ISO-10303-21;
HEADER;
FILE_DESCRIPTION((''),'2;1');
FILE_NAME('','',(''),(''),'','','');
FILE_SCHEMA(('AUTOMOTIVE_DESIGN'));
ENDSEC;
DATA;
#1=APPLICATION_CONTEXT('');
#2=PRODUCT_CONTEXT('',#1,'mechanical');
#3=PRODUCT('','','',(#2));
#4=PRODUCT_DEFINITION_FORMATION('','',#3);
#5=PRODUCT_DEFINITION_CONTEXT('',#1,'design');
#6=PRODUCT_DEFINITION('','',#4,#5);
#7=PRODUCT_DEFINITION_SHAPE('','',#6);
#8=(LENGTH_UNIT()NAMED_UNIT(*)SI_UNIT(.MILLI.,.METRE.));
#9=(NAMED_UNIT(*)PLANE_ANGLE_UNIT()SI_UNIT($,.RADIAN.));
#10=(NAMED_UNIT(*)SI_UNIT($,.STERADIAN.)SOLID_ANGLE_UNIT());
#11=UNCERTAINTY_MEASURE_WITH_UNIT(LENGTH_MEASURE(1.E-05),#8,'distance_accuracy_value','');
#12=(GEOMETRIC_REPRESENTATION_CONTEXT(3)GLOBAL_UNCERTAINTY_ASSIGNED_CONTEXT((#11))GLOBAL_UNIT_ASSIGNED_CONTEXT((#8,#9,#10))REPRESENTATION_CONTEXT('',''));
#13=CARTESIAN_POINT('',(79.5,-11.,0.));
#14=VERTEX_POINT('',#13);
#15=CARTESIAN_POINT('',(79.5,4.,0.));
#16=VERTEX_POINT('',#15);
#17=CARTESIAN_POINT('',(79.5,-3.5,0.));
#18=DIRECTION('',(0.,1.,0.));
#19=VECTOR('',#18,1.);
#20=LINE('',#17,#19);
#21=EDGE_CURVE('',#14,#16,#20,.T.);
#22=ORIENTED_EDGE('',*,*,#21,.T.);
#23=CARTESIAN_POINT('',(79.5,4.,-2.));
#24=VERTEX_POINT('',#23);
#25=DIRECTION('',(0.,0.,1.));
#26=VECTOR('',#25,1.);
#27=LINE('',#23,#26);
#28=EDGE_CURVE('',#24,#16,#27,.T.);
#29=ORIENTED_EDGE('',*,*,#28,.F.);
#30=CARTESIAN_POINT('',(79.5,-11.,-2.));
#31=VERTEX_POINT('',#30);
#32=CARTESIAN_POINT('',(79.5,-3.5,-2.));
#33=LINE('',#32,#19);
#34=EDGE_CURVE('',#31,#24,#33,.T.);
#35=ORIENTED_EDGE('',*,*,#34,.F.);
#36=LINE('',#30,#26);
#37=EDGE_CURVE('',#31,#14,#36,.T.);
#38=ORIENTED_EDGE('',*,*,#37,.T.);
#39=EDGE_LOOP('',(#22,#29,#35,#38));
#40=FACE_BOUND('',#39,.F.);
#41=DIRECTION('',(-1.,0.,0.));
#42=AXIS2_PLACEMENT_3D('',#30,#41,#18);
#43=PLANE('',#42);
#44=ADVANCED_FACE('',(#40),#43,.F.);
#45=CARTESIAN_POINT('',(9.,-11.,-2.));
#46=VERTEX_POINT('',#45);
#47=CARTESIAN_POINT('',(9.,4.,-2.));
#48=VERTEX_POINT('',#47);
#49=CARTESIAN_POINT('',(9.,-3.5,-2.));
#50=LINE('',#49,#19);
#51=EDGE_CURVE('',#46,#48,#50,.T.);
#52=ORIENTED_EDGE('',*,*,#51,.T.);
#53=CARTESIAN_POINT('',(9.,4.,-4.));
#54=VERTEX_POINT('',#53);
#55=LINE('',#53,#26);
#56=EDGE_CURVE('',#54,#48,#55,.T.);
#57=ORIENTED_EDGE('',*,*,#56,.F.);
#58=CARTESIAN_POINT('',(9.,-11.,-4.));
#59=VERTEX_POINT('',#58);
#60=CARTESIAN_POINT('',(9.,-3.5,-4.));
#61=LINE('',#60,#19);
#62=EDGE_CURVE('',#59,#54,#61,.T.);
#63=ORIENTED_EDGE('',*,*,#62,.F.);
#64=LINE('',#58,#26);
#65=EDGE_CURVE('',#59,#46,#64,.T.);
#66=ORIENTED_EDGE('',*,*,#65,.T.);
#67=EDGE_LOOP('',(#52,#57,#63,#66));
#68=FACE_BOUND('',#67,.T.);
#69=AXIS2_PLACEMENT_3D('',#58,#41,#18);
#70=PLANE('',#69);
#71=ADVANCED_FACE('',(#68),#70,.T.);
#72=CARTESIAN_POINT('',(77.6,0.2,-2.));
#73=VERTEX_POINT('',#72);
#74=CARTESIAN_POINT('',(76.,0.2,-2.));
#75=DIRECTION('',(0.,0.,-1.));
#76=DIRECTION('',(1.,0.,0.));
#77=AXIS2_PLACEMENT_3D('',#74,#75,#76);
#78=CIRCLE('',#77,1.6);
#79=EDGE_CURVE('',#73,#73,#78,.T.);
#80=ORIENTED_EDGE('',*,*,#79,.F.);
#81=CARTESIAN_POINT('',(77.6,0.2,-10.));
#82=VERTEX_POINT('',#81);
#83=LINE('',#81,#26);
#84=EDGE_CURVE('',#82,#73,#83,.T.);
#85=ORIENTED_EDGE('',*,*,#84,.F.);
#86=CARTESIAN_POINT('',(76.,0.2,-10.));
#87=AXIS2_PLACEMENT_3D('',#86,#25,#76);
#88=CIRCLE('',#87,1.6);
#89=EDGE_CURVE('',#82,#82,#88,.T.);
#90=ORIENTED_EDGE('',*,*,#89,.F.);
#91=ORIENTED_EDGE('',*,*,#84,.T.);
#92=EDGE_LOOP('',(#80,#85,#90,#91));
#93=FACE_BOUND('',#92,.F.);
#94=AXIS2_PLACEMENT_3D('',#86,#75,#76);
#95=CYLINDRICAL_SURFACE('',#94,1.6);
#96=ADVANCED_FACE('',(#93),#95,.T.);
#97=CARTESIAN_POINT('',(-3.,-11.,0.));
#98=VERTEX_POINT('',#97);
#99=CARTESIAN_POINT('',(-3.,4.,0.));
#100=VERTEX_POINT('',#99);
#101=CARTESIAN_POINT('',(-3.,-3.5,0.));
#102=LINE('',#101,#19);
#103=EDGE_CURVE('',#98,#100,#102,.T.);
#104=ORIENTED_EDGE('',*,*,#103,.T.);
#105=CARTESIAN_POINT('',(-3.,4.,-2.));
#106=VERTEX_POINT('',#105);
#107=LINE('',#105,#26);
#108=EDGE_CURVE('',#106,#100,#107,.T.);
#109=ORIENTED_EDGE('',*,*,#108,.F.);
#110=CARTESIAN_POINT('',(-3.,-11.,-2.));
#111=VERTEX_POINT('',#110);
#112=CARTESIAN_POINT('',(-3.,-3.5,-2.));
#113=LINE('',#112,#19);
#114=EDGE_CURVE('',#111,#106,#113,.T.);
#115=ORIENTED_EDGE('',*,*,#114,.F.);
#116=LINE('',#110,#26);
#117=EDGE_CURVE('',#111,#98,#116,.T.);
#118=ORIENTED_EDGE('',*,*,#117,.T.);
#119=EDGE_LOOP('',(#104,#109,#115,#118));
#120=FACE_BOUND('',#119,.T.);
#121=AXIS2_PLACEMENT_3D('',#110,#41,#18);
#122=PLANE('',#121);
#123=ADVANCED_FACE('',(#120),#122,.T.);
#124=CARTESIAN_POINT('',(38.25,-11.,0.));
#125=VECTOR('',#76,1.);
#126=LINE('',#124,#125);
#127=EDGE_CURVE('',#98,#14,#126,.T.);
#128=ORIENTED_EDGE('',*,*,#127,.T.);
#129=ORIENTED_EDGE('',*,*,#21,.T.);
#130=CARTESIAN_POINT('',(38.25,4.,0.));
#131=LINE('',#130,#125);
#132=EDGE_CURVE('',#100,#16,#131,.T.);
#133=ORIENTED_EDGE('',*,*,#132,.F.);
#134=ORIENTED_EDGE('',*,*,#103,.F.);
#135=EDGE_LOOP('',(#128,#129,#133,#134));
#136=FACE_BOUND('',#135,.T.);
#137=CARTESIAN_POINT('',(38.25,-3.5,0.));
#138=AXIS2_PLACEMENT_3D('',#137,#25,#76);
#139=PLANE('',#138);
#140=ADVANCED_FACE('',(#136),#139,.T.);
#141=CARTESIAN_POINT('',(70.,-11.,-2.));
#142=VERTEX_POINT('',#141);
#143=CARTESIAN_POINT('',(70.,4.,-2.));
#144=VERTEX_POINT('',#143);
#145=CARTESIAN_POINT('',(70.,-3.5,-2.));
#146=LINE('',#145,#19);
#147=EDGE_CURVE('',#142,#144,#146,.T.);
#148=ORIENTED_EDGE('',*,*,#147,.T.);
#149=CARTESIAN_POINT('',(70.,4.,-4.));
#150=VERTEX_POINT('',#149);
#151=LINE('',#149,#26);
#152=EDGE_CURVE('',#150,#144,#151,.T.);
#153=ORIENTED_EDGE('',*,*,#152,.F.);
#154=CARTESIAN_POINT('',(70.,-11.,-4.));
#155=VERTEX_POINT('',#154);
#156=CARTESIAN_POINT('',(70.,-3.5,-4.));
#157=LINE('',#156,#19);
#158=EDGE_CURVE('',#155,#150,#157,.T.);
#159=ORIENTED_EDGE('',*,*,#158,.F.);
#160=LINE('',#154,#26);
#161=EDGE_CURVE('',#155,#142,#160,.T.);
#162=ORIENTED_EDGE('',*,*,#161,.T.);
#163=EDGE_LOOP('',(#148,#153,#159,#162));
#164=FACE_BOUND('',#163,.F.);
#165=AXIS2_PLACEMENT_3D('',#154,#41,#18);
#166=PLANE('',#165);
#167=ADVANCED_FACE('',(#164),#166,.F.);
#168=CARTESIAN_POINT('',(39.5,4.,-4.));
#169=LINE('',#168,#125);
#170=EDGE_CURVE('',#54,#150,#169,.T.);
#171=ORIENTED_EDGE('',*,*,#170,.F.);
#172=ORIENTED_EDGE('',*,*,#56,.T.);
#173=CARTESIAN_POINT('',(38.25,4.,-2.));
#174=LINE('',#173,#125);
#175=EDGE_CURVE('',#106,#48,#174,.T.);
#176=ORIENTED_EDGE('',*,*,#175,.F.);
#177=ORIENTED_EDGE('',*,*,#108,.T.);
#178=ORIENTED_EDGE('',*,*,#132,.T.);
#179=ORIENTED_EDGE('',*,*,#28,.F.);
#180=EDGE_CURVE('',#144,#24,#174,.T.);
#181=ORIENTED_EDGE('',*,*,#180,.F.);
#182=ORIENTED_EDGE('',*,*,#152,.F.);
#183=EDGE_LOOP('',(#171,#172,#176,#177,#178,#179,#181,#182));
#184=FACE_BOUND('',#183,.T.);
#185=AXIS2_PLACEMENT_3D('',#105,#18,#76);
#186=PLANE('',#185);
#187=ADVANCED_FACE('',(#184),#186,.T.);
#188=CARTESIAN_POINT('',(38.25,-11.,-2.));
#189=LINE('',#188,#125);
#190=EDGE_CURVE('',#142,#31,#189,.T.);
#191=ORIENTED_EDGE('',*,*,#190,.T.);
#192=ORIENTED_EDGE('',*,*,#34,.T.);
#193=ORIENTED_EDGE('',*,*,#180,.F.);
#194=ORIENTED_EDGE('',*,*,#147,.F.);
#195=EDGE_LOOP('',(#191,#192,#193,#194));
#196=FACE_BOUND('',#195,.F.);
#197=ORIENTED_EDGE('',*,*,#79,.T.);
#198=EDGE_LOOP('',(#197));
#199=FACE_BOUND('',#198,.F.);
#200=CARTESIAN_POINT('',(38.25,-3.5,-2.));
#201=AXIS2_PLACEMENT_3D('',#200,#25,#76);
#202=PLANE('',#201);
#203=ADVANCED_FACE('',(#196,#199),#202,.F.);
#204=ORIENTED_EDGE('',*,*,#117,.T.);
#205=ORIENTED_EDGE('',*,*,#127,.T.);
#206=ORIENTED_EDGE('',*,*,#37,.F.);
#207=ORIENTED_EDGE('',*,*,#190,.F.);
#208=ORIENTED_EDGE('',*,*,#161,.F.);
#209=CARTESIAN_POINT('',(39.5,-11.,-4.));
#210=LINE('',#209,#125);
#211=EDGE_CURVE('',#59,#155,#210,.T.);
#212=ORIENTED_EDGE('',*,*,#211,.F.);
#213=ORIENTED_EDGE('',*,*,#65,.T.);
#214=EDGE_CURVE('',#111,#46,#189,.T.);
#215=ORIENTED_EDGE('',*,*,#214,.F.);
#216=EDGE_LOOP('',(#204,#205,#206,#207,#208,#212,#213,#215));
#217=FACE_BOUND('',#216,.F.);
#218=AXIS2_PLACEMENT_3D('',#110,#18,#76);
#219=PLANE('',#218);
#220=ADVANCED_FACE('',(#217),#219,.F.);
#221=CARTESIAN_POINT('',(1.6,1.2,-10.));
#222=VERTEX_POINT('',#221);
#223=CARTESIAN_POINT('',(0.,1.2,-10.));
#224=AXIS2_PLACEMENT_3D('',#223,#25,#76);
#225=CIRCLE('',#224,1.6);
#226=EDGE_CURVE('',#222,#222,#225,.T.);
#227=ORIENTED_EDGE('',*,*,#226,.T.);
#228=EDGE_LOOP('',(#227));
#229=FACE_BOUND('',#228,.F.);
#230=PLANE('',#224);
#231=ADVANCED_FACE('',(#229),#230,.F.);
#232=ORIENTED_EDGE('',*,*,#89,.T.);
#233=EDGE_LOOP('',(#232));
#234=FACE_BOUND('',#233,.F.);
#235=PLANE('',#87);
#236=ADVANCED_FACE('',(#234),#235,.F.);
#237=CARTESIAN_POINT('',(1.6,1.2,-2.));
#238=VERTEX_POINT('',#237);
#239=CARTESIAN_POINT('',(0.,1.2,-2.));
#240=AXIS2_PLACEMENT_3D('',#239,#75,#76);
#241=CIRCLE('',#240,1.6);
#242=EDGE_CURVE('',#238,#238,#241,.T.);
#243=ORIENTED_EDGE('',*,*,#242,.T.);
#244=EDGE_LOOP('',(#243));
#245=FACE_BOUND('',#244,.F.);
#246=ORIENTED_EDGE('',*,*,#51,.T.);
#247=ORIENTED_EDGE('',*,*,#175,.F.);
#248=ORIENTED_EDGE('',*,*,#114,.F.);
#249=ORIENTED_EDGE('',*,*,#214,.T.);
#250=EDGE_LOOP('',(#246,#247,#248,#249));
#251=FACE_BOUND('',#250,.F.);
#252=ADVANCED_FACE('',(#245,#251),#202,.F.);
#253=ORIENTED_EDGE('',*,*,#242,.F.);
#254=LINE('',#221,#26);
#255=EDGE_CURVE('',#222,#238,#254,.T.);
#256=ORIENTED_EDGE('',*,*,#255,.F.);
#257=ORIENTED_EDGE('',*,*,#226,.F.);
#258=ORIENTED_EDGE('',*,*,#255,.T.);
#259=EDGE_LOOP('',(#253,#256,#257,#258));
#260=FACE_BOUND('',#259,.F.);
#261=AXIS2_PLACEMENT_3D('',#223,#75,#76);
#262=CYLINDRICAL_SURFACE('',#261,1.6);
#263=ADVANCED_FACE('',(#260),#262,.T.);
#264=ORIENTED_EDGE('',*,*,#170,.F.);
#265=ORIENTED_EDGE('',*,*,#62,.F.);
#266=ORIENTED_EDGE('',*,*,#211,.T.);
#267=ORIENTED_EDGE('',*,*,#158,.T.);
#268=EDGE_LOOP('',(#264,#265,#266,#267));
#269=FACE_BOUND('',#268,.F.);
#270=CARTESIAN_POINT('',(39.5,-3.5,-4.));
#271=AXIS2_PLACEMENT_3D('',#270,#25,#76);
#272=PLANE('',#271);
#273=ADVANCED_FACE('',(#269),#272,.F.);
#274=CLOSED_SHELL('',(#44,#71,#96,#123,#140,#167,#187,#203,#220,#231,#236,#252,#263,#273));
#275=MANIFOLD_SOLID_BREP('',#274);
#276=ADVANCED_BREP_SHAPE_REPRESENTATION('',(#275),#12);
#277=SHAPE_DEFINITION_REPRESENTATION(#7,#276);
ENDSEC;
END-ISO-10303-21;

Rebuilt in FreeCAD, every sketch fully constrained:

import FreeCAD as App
import Part
import Sketcher

V = App.Vector
Q = App.Units.Quantity

doc = App.newDocument("Part")
body = doc.addObject("PartDesign::Body", "Body")

# Sketch on XY plane
sketch1 = body.newObject("Sketcher::SketchObject", "Sketch")
sketch1.AttachmentSupport = (doc.getObject("XY_Plane"), [""])
sketch1.MapMode = "FlatFace"
sketch1.AttachmentOffset = App.Placement(V(0, 0, -10), App.Rotation())
sketch1.addGeometry(Part.Circle(V(0, 1.2, 0), V(0, 0, 1), 1.6), False)
sketch1.addConstraint([
    Sketcher.Constraint("PointOnObject", 0, 3, -2),
    Sketcher.Constraint("Diameter", 0, Q("3.2 mm")),
    Sketcher.Constraint("DistanceY", -1, 1, 0, 3, Q("1.2 mm")),
])
pad1 = body.newObject("PartDesign::Pad", "Pad")
pad1.Profile = sketch1
pad1.Length = 10
body2 = doc.addObject("PartDesign::Body", "Body001")

# Sketch on XY plane
sketch2 = body2.newObject("Sketcher::SketchObject", "Sketch001")
sketch2.AttachmentSupport = (doc.getObject("XY_Plane001"), [""])
sketch2.MapMode = "FlatFace"
sketch2.AttachmentOffset = App.Placement(V(0, 0, -2), App.Rotation())
sketch2.addGeometry([
    Part.LineSegment(V(12, 15, 0), V(12, 0, 0)),
    Part.LineSegment(V(12, 0, 0), V(73, 0, 0)),
    Part.LineSegment(V(73, 0, 0), V(73, 15, 0)),
    Part.LineSegment(V(73, 15, 0), V(12, 15, 0)),
], False)
sketch2.addConstraint([
    Sketcher.Constraint("Coincident", 0, 2, 1, 1),
    Sketcher.Constraint("Coincident", 1, 2, 2, 1),
    Sketcher.Constraint("Coincident", 2, 2, 3, 1),
    Sketcher.Constraint("Coincident", 3, 2, 0, 1),
    Sketcher.Constraint("Vertical", 0),
    Sketcher.Constraint("Horizontal", 1),
    Sketcher.Constraint("Vertical", 2),
    Sketcher.Constraint("Horizontal", 3),
    Sketcher.Constraint("PointOnObject", 0, 2, -1),
    Sketcher.Constraint("DistanceX", 1, 1, 1, 2, Q("61 mm")),
    Sketcher.Constraint("DistanceY", 0, 2, 0, 1, Q("15 mm")),
    Sketcher.Constraint("DistanceX", -1, 1, 0, 2, Q("12 mm")),
])
pad2 = body2.newObject("PartDesign::Pad", "Pad001")
pad2.Profile = sketch2
pad2.Length = 2
body3 = doc.addObject("PartDesign::Body", "Body002")

# Sketch on XY plane
sketch3 = body3.newObject("Sketcher::SketchObject", "Sketch002")
sketch3.AttachmentSupport = (doc.getObject("XY_Plane002"), [""])
sketch3.MapMode = "FlatFace"
sketch3.addGeometry([
    Part.LineSegment(V(0, 15, 0), V(0, 0, 0)),
    Part.LineSegment(V(0, 0, 0), V(82, 0, 0)),
    Part.LineSegment(V(82, 0, 0), V(82, 15, 0)),
    Part.LineSegment(V(82, 15, 0), V(0, 15, 0)),
], False)
sketch3.addConstraint([
    Sketcher.Constraint("Coincident", 0, 2, 1, 1),
    Sketcher.Constraint("Coincident", 1, 2, 2, 1),
    Sketcher.Constraint("Coincident", 2, 2, 3, 1),
    Sketcher.Constraint("Coincident", 3, 2, 0, 1),
    Sketcher.Constraint("Vertical", 0),
    Sketcher.Constraint("Horizontal", 1),
    Sketcher.Constraint("Vertical", 2),
    Sketcher.Constraint("Horizontal", 3),
    Sketcher.Constraint("Coincident", 0, 2, -1, 1),
    Sketcher.Constraint("DistanceY", 0, 2, 0, 1, Q("15 mm")),
    Sketcher.Constraint("DistanceX", 1, 1, 1, 2, Q("82.5 mm")),
])
pad3 = body3.newObject("PartDesign::Pad", "Pad002")
pad3.Profile = sketch3
pad3.Length = 2
doc.recompute()

boolean = body3.newObject("PartDesign::Boolean", "Boolean")
boolean.Type = "Fuse"
boolean.addObjects([body2])
body4 = doc.addObject("PartDesign::Body", "Body003")
doc.recompute()

body3.Placement = App.Placement(V(-3, -11, -2), App.Rotation(V(0, 0, 1), 0))
boolean2 = body4.newObject("PartDesign::Boolean", "Boolean001")
boolean2.Type = "Fuse"
boolean2.addObjects([body3])
doc.recompute()

boolean3 = body4.newObject("PartDesign::Boolean", "Boolean002")
boolean3.Type = "Fuse"
boolean3.addObjects([body])
body5 = doc.addObject("PartDesign::Body", "Body004")

# Sketch on XY plane
sketch4 = body5.newObject("Sketcher::SketchObject", "Sketch003")
sketch4.AttachmentSupport = (doc.getObject("XY_Plane004"), [""])
sketch4.MapMode = "FlatFace"
sketch4.AttachmentOffset = App.Placement(V(0, 0, -10), App.Rotation())
sketch4.addGeometry(Part.Circle(V(76, 0.2, 0), V(0, 0, 1), 1.6), False)
sketch4.addConstraint([
    Sketcher.Constraint("Diameter", 0, Q("3.2 mm")),
    Sketcher.Constraint("DistanceX", -1, 1, 0, 3, Q("76 mm")),
    Sketcher.Constraint("DistanceY", -1, 1, 0, 3, Q("0.2 mm")),
])
pad4 = body5.newObject("PartDesign::Pad", "Pad003")
pad4.Profile = sketch4
pad4.Length = 10
doc.recompute()

boolean4 = body5.newObject("PartDesign::Boolean", "Boolean003")
boolean4.Type = "Fuse"
boolean4.addObjects([body4])

doc.recompute()
